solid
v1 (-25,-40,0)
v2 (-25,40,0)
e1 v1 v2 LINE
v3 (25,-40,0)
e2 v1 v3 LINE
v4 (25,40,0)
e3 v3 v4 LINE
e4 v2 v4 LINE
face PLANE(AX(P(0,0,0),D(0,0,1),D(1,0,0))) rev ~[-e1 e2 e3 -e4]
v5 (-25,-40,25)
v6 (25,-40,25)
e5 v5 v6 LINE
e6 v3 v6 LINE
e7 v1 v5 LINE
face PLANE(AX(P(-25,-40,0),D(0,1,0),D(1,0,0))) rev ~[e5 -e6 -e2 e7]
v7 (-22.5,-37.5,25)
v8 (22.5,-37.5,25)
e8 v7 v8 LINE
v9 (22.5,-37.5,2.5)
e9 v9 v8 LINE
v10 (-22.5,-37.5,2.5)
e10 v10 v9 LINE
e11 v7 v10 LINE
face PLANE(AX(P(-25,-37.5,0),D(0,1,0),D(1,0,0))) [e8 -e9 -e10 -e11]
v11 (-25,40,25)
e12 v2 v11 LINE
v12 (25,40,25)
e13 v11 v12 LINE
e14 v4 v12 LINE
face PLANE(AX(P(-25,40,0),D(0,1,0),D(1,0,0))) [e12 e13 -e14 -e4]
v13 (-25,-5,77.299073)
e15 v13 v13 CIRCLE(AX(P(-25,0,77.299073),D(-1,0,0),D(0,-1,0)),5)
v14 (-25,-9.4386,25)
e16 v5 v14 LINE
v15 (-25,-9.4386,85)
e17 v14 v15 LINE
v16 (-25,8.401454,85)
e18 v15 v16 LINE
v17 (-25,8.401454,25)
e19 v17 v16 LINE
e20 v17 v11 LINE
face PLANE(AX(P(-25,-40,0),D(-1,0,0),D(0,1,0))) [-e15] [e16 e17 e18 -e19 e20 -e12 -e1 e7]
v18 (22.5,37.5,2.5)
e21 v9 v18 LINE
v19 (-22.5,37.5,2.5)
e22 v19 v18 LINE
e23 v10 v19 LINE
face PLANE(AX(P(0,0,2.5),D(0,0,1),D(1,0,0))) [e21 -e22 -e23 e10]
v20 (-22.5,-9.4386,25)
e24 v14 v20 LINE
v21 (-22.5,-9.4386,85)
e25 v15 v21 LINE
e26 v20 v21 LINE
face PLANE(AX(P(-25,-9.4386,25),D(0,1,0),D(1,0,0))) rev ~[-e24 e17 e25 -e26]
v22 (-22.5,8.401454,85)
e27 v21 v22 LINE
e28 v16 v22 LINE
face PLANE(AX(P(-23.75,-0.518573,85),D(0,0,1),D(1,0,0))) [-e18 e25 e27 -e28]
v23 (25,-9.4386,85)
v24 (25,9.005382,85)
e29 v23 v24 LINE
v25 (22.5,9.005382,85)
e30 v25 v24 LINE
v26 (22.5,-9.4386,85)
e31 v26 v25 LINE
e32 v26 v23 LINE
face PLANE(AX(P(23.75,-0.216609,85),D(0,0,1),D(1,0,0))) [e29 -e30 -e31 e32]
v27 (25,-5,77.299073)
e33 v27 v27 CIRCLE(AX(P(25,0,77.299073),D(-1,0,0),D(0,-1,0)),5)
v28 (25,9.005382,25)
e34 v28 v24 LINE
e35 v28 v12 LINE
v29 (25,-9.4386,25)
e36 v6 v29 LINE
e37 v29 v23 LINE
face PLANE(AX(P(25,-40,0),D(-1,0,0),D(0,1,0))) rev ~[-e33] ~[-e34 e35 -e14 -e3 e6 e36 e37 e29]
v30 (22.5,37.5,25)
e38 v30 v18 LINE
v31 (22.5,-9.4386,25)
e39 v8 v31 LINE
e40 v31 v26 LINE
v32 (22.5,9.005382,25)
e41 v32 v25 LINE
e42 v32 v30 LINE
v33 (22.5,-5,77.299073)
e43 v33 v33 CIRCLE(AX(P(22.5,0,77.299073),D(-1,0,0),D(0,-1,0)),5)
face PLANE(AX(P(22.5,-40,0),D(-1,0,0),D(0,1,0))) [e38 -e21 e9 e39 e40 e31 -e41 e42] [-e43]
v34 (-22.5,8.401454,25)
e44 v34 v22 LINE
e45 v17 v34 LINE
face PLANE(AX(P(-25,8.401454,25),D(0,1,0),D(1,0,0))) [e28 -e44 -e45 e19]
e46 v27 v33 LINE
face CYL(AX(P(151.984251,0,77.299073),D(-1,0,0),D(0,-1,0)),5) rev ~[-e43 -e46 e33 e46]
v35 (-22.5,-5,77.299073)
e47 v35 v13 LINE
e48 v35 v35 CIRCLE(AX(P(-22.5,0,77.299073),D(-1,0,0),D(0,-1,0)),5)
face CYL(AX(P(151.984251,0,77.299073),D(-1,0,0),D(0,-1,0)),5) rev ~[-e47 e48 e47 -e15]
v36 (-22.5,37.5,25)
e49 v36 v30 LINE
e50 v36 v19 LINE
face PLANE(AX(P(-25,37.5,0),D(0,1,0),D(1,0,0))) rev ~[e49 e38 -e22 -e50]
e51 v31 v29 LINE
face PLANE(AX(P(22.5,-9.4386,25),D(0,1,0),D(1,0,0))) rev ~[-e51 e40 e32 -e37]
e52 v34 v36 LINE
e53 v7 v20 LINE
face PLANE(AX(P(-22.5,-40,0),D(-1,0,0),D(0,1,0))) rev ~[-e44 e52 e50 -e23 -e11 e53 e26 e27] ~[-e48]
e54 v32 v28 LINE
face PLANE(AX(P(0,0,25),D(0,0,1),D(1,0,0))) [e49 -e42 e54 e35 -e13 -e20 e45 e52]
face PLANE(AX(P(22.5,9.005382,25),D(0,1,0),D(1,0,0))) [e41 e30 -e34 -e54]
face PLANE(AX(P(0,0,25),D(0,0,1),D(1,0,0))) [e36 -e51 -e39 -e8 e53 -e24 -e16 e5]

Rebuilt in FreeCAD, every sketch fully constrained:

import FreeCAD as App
import Part
import Sketcher

V = App.Vector


def faces_at(feature, points):
    """Names of the faces that lie closest to the given points."""
    faces = feature.Shape.Faces
    near = lambda p: min(range(len(faces)), key=lambda i: faces[i].distToShape(Part.Vertex(*p))[0])
    return sorted({f"Face{near(p) + 1}" for p in points})

doc = App.newDocument("Part")
params = doc.addObject("Spreadsheet::Sheet", "Params")
for row, (alias, value) in enumerate([
    ("sketch1_width", "50 mm"),
    ("sketch1_height", "80 mm"),
    ("pad1_length", "25 mm"),
    ("thickness_wall", "2.5 mm"),
    ("sketch2_width", "2.5 mm"),
    ("pad2_length", "60 mm"),
    ("sketch3_diameter", "10 mm"),
    ("hole_diameter", "10 mm"),
], start=1):
    params.set(f"A{row}", alias)
    params.set(f"B{row}", "=" + value)
    params.setAlias(f"B{row}", alias)

body = doc.addObject("PartDesign::Body", "Body")

# Sketch on XY plane
sketch1 = body.newObject("Sketcher::SketchObject", "Sketch")
sketch1.AttachmentSupport = (doc.getObject("XY_Plane"), [""])
sketch1.MapMode = "FlatFace"
sketch1.addGeometry(Part.LineSegment(V(-25, 40, 0), V(-25, -40, 0)), False)
sketch1.addGeometry(Part.LineSegment(V(-25, -40, 0), V(25, -40, 0)), False)
sketch1.addGeometry(Part.LineSegment(V(25, -40, 0), V(25, 40, 0)), False)
sketch1.addGeometry(Part.LineSegment(V(25, 40, 0), V(-25, 40, 0)), False)
sketch1.addConstraint(Sketcher.Constraint("Coincident", 0, 2, 1, 1))
sketch1.addConstraint(Sketcher.Constraint("Coincident", 1, 2, 2, 1))
sketch1.addConstraint(Sketcher.Constraint("Coincident", 2, 2, 3, 1))
sketch1.addConstraint(Sketcher.Constraint("Coincident", 3, 2, 0, 1))
sketch1.addConstraint(Sketcher.Constraint("Vertical", 0))
sketch1.addConstraint(Sketcher.Constraint("Horizontal", 1))
sketch1.addConstraint(Sketcher.Constraint("Vertical", 2))
sketch1.addConstraint(Sketcher.Constraint("Horizontal", 3))
sketch1.addConstraint(Sketcher.Constraint("Symmetric", 0, 2, 2, 2, -1, 1))
sketch1.addConstraint(Sketcher.Constraint("DistanceX", 1, 1, 1, 2, 50.0))
sketch1.addConstraint(Sketcher.Constraint("DistanceY", 0, 2, 0, 1, 80.0))
sketch1.setExpression("Constraints[9]", "Params.sketch1_width")
sketch1.setExpression("Constraints[10]", "Params.sketch1_height")
pad1 = body.newObject("PartDesign::Pad", "Pad")
pad1.Profile = sketch1
pad1.setExpression("Length", "Params.pad1_length")
doc.recompute()

thickness = body.newObject("PartDesign::Thickness", "Thickness")
thickness.Base = (pad1, faces_at(pad1, [(0, 0, 25)]))
thickness.setExpression("Value", "Params.thickness_wall")
thickness.Reversed = True
thickness.Join = "Arc"

# Sketch on XY plane
sketch2 = body.newObject("Sketcher::SketchObject", "Sketch001")
sketch2.AttachmentSupport = (doc.getObject("XY_Plane"), [""])
sketch2.MapMode = "FlatFace"
sketch2.AttachmentOffset = App.Placement(V(0, 0, 25), App.Rotation())
sketch2.addGeometry(Part.LineSegment(V(-25, 8.401454, 0), V(-25, -9.4386, 0)), False)
sketch2.addGeometry(Part.LineSegment(V(-25, -9.4386, 0), V(-22.5, -9.4386, 0)), False)
sketch2.addGeometry(Part.LineSegment(V(-22.5, -9.4386, 0), V(-22.5, 8.401454, 0)), False)
sketch2.addGeometry(Part.LineSegment(V(-22.5, 8.401454, 0), V(-25, 8.401454, 0)), False)
sketch2.addGeometry(Part.LineSegment(V(22.5, 9.005382, 0), V(22.5, -9.4386, 0)), False)
sketch2.addGeometry(Part.LineSegment(V(22.5, -9.4386, 0), V(25, -9.4386, 0)), False)
sketch2.addGeometry(Part.LineSegment(V(25, -9.4386, 0), V(25, 9.005382, 0)), False)
sketch2.addGeometry(Part.LineSegment(V(25, 9.005382, 0), V(22.5, 9.005382, 0)), False)
sketch2.addConstraint(Sketcher.Constraint("Coincident", 0, 2, 1, 1))
sketch2.addConstraint(Sketcher.Constraint("Coincident", 1, 2, 2, 1))
sketch2.addConstraint(Sketcher.Constraint("Coincident", 2, 2, 3, 1))
sketch2.addConstraint(Sketcher.Constraint("Coincident", 3, 2, 0, 1))
sketch2.addConstraint(Sketcher.Constraint("Coincident", 4, 2, 5, 1))
sketch2.addConstraint(Sketcher.Constraint("Coincident", 5, 2, 6, 1))
sketch2.addConstraint(Sketcher.Constraint("Coincident", 6, 2, 7, 1))
sketch2.addConstraint(Sketcher.Constraint("Coincident", 7, 2, 4, 1))
sketch2.addConstraint(Sketcher.Constraint("Vertical", 0))
sketch2.addConstraint(Sketcher.Constraint("Horizontal", 1))
sketch2.addConstraint(Sketcher.Constraint("Vertical", 2))
sketch2.addConstraint(Sketcher.Constraint("Horizontal", 3))
sketch2.addConstraint(Sketcher.Constraint("Vertical", 4))
sketch2.addConstraint(Sketcher.Constraint("Horizontal", 5))
sketch2.addConstraint(Sketcher.Constraint("Vertical", 6))
sketch2.addConstraint(Sketcher.Constraint("Horizontal", 7))
sketch2.addConstraint(Sketcher.Constraint("Symmetric", 1, 2, 4, 2, -2))
sketch2.addConstraint(Sketcher.Constraint("Equal", 3, 5))
sketch2.addConstraint(Sketcher.Constraint("DistanceX", 1, 1, 1, 2, 2.5))
sketch2.addConstraint(Sketcher.Constraint("DistanceX", 0, 2, -1, 1, 25.0))
sketch2.addConstraint(Sketcher.Constraint("DistanceY", 4, 2, 4, 1, 18.443981))
sketch2.addConstraint(Sketcher.Constraint("DistanceY", 0, 2, -1, 1, 9.4386))
sketch2.addConstraint(Sketcher.Constraint("DistanceY", 0, 2, 0, 1, 17.840053))
sketch2.setExpression("Constraints[18]", "Params.sketch2_width")
pad2 = body.newObject("PartDesign::Pad", "Pad001")
pad2.Profile = sketch2
pad2.setExpression("Length", "Params.pad2_length")

# Sketch on YZ plane
sketch3 = body.newObject("Sketcher::SketchObject", "Sketch002")
sketch3.AttachmentSupport = (doc.getObject("YZ_Plane"), [""])
sketch3.MapMode = "FlatFace"
sketch3.AttachmentOffset = App.Placement(V(0, 0, 25), App.Rotation())
sketch3.addGeometry(Part.Circle(V(0, 77.299073, 0), V(0, 0, 1), 5), False)
sketch3.addConstraint(Sketcher.Constraint("PointOnObject", 0, 3, -2))
sketch3.addConstraint(Sketcher.Constraint("Diameter", 0, 10.0))
sketch3.addConstraint(Sketcher.Constraint("DistanceY", -1, 1, 0, 3, 77.299073))
sketch3.setExpression("Constraints[1]", "Params.sketch3_diameter")
doc.recompute()
hole = body.newObject("PartDesign::Hole", "Hole")
hole.Profile = sketch3
hole.ThreadType = "None"
hole.setExpression("Diameter", "Params.hole_diameter")
hole.DepthType = "ThroughAll"

doc.recompute()
